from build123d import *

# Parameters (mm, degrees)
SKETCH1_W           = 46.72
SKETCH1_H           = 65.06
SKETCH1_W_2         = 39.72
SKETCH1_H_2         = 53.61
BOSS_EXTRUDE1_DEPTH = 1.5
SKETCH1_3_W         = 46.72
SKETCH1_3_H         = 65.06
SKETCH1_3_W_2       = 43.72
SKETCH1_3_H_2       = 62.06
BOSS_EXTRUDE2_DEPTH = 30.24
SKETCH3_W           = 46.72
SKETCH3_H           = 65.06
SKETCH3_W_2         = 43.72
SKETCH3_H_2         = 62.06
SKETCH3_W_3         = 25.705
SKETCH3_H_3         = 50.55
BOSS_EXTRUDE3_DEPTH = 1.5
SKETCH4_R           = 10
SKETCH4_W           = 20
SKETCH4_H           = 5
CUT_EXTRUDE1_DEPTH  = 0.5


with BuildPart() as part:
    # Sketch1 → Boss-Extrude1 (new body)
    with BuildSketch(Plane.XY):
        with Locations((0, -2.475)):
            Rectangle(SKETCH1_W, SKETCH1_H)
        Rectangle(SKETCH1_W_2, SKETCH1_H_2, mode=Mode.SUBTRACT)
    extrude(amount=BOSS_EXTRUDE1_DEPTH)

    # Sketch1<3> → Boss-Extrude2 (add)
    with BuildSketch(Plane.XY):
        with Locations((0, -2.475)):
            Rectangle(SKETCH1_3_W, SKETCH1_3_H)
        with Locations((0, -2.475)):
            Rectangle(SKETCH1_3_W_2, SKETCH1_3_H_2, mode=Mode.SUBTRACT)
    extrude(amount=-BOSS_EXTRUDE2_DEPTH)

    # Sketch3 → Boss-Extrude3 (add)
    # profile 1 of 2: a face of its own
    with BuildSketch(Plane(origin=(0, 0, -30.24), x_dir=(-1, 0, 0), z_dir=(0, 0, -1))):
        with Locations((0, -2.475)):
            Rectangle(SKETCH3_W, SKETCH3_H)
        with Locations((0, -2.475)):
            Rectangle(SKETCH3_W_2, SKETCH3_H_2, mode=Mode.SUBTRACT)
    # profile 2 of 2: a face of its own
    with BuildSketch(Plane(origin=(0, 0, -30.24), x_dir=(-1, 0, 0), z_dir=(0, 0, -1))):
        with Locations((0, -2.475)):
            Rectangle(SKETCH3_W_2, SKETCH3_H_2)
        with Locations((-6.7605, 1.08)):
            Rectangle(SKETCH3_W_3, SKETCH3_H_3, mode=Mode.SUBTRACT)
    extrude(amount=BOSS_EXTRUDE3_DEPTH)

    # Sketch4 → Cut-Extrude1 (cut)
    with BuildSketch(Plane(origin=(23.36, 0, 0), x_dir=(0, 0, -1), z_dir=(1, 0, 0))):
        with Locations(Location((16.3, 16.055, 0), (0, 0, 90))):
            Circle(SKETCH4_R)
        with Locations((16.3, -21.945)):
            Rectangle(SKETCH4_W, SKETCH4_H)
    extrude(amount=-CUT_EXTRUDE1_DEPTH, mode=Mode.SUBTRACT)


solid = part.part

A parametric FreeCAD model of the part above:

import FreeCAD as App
import Part
import Sketcher
Q = App.Units.Quantity


def add_polygon(sketch, points):
    """Adds a closed chain of lines whose ends are joined by coincident constraints."""
    first, n = sketch.GeometryCount, len(points)
    for a, b in zip(points, points[1:] + points[:1]):
        sketch.addGeometry(Part.LineSegment(App.Vector(*a, 0), App.Vector(*b, 0)), False)
    for i in range(n):
        sketch.addConstraint(Sketcher.Constraint("Coincident", first + i, 2, first + (i + 1) % n, 1))

doc = App.newDocument("Part")
body = doc.addObject("PartDesign::Body", "Body")

# Sketch on XY plane
sketch1 = body.newObject("Sketcher::SketchObject", "Sketch")
sketch1.AttachmentSupport = (doc.getObject("XY_Plane"), [""])
sketch1.MapMode = "FlatFace"
add_polygon(sketch1, [(-23, 30), (-23, -35), (23, -35), (23, 30)])  # lines 0-3
add_polygon(sketch1, [(20, -27), (-20, -27), (-20, 27), (20, 27)])  # lines 4-7
sketch1.addConstraint(Sketcher.Constraint("Vertical", 0))
sketch1.addConstraint(Sketcher.Constraint("Horizontal", 1))
sketch1.addConstraint(Sketcher.Constraint("Vertical", 2))
sketch1.addConstraint(Sketcher.Constraint("Horizontal", 3))
sketch1.addConstraint(Sketcher.Constraint("Horizontal", 4))
sketch1.addConstraint(Sketcher.Constraint("Vertical", 5))
sketch1.addConstraint(Sketcher.Constraint("Horizontal", 6))
sketch1.addConstraint(Sketcher.Constraint("Vertical", 7))
sketch1.addConstraint(Sketcher.Constraint("Symmetric", 4, 2, 6, 2, -1, 1))
sketch1.addConstraint(Sketcher.Constraint("DistanceX", 1, 1, 1, 2, Q("46.72 mm")))
sketch1.addConstraint(Sketcher.Constraint("DistanceX", 4, 2, 4, 1, Q("39.72 mm")))
sketch1.addConstraint(Sketcher.Constraint("DistanceY", 0, 2, 0, 1, Q("65.06 mm")))
sketch1.addConstraint(Sketcher.Constraint("DistanceY", 5, 1, 5, 2, Q("53.61 mm")))
sketch1.addConstraint(Sketcher.Constraint("DistanceX", 0, 2, 4, 2, Q("3.5 mm")))
sketch1.addConstraint(Sketcher.Constraint("DistanceY", 0, 2, 4, 2, Q("8.2 mm")))
pad1 = body.newObject("PartDesign::Pad", "Pad")
pad1.Profile = sketch1
pad1.Length = 1.5

# Sketch on XY plane
sketch2 = body.newObject("Sketcher::SketchObject", "Sketch001")
sketch2.AttachmentSupport = (doc.getObject("XY_Plane"), [""])
sketch2.MapMode = "FlatFace"
add_polygon(sketch2, [(-23, 30), (-23, -35), (23, -35), (23, 30)])  # lines 0-3
add_polygon(sketch2, [(22, -34), (-22, -34), (-22, 29), (22, 29)])  # lines 4-7
sketch2.addConstraint(Sketcher.Constraint("Vertical", 0))
sketch2.addConstraint(Sketcher.Constraint("Horizontal", 1))
sketch2.addConstraint(Sketcher.Constraint("Vertical", 2))
sketch2.addConstraint(Sketcher.Constraint("Horizontal", 3))
sketch2.addConstraint(Sketcher.Constraint("Horizontal", 4))
sketch2.addConstraint(Sketcher.Constraint("Vertical", 5))
sketch2.addConstraint(Sketcher.Constraint("Horizontal", 6))
sketch2.addConstraint(Sketcher.Constraint("Vertical", 7))
sketch2.addConstraint(Sketcher.Constraint("DistanceX", 1, 1, 1, 2, Q("46.72 mm")))
sketch2.addConstraint(Sketcher.Constraint("DistanceX", 4, 2, 4, 1, Q("43.72 mm")))
sketch2.addConstraint(Sketcher.Constraint("DistanceY", 0, 2, 0, 1, Q("65.06 mm")))
sketch2.addConstraint(Sketcher.Constraint("DistanceY", 5, 1, 5, 2, Q("62.06 mm")))
sketch2.addConstraint(Sketcher.Constraint("DistanceX", 0, 2, 4, 2, Q("1.5 mm")))
sketch2.addConstraint(Sketcher.Constraint("DistanceY", 0, 2, 4, 2, Q("1.5 mm")))
sketch2.addConstraint(Sketcher.Constraint("DistanceX", 0, 2, -1, 1, Q("23.36 mm")))
sketch2.addConstraint(Sketcher.Constraint("DistanceY", 0, 2, -1, 1, Q("35.005 mm")))
pad2 = body.newObject("PartDesign::Pad", "Pad001")
pad2.Profile = sketch2
pad2.Length = 30.24
pad2.Reversed = True

# Sketch on XY plane
sketch3 = body.newObject("Sketcher::SketchObject", "Sketch002")
sketch3.AttachmentSupport = (doc.getObject("XY_Plane"), [""])
sketch3.MapMode = "FlatFace"
sketch3.AttachmentOffset = App.Placement(App.Vector(0, 0, -30.24), App.Rotation())
add_polygon(sketch3, [(23, 30), (23, -35), (-23, -35), (-23, 30)])  # lines 0-3
add_polygon(sketch3, [(-6, -24), (20, -24), (20, 26), (-6, 26)])  # lines 4-7
sketch3.addConstraint(Sketcher.Constraint("Vertical", 0))
sketch3.addConstraint(Sketcher.Constraint("Horizontal", 1))
sketch3.addConstraint(Sketcher.Constraint("Vertical", 2))
sketch3.addConstraint(Sketcher.Constraint("Horizontal", 3))
sketch3.addConstraint(Sketcher.Constraint("Horizontal", 4))
sketch3.addConstraint(Sketcher.Constraint("Vertical", 5))
sketch3.addConstraint(Sketcher.Constraint("Horizontal", 6))
sketch3.addConstraint(Sketcher.Constraint("Vertical", 7))
sketch3.addConstraint(Sketcher.Constraint("DistanceX", 1, 2, 1, 1, Q("46.72 mm")))
sketch3.addConstraint(Sketcher.Constraint("DistanceY", 0, 2, 0, 1, Q("65.06 mm")))
sketch3.addConstraint(Sketcher.Constraint("DistanceY", 5, 1, 5, 2, Q("50.55 mm")))
sketch3.addConstraint(Sketcher.Constraint("DistanceY", 5, 2, 3, 2, Q("3.7 mm")))
sketch3.addConstraint(Sketcher.Constraint("DistanceX", 4, 1, 4, 2, Q("25.705 mm")))
sketch3.addConstraint(Sketcher.Constraint("DistanceX", -1, 1, 0, 2, Q("23.36 mm")))
sketch3.addConstraint(Sketcher.Constraint("DistanceY", 0, 2, -1, 1, Q("35.005 mm")))
sketch3.addConstraint(Sketcher.Constraint("DistanceX", -1, 1, 4, 2, Q("19.613 mm")))
pad3 = body.newObject("PartDesign::Pad", "Pad002")
pad3.Profile = sketch3
pad3.Length = 1.5
pad3.Reversed = True

# Sketch on YZ plane
sketch4 = body.newObject("Sketcher::SketchObject", "Sketch003")
sketch4.AttachmentSupport = (doc.getObject("YZ_Plane"), [""])
sketch4.MapMode = "FlatFace"
sketch4.AttachmentOffset = App.Placement(App.Vector(0, 0, 23.36), App.Rotation())
sketch4.addGeometry(Part.Circle(App.Vector(16, -16, 0), App.Vector(0, 0, 1), 10), False)  # 0
add_polygon(sketch4, [(-19, -6), (-24, -6), (-24, -26), (-19, -26)])  # lines 1-4
sketch4.addConstraint(Sketcher.Constraint("Horizontal", 1))
sketch4.addConstraint(Sketcher.Constraint("Vertical", 2))
sketch4.addConstraint(Sketcher.Constraint("Horizontal", 3))
sketch4.addConstraint(Sketcher.Constraint("Vertical", 4))
sketch4.addConstraint(Sketcher.Constraint("Diameter", 0, Q("20 mm")))
sketch4.addConstraint(Sketcher.Constraint("DistanceX", 1, 2, 1, 1, Q("5 mm")))
sketch4.addConstraint(Sketcher.Constraint("DistanceY", 2, 2, 2, 1, Q("20 mm")))
sketch4.addConstraint(Sketcher.Constraint("DistanceY", 0, 3, 1, 2, Q("10 mm")))
sketch4.addConstraint(Sketcher.Constraint("DistanceY", 0, 3, -1, 1, Q("16.3 mm")))
sketch4.addConstraint(Sketcher.Constraint("DistanceX", 1, 2, 0, 3, Q("40.5 mm")))
sketch4.addConstraint(Sketcher.Constraint("DistanceX", -1, 1, 0, 3, Q("16.055 mm")))
pocket1 = body.newObject("PartDesign::Pocket", "Pocket")
pocket1.Profile = sketch4
pocket1.Length = 0.5

doc.recompute()
